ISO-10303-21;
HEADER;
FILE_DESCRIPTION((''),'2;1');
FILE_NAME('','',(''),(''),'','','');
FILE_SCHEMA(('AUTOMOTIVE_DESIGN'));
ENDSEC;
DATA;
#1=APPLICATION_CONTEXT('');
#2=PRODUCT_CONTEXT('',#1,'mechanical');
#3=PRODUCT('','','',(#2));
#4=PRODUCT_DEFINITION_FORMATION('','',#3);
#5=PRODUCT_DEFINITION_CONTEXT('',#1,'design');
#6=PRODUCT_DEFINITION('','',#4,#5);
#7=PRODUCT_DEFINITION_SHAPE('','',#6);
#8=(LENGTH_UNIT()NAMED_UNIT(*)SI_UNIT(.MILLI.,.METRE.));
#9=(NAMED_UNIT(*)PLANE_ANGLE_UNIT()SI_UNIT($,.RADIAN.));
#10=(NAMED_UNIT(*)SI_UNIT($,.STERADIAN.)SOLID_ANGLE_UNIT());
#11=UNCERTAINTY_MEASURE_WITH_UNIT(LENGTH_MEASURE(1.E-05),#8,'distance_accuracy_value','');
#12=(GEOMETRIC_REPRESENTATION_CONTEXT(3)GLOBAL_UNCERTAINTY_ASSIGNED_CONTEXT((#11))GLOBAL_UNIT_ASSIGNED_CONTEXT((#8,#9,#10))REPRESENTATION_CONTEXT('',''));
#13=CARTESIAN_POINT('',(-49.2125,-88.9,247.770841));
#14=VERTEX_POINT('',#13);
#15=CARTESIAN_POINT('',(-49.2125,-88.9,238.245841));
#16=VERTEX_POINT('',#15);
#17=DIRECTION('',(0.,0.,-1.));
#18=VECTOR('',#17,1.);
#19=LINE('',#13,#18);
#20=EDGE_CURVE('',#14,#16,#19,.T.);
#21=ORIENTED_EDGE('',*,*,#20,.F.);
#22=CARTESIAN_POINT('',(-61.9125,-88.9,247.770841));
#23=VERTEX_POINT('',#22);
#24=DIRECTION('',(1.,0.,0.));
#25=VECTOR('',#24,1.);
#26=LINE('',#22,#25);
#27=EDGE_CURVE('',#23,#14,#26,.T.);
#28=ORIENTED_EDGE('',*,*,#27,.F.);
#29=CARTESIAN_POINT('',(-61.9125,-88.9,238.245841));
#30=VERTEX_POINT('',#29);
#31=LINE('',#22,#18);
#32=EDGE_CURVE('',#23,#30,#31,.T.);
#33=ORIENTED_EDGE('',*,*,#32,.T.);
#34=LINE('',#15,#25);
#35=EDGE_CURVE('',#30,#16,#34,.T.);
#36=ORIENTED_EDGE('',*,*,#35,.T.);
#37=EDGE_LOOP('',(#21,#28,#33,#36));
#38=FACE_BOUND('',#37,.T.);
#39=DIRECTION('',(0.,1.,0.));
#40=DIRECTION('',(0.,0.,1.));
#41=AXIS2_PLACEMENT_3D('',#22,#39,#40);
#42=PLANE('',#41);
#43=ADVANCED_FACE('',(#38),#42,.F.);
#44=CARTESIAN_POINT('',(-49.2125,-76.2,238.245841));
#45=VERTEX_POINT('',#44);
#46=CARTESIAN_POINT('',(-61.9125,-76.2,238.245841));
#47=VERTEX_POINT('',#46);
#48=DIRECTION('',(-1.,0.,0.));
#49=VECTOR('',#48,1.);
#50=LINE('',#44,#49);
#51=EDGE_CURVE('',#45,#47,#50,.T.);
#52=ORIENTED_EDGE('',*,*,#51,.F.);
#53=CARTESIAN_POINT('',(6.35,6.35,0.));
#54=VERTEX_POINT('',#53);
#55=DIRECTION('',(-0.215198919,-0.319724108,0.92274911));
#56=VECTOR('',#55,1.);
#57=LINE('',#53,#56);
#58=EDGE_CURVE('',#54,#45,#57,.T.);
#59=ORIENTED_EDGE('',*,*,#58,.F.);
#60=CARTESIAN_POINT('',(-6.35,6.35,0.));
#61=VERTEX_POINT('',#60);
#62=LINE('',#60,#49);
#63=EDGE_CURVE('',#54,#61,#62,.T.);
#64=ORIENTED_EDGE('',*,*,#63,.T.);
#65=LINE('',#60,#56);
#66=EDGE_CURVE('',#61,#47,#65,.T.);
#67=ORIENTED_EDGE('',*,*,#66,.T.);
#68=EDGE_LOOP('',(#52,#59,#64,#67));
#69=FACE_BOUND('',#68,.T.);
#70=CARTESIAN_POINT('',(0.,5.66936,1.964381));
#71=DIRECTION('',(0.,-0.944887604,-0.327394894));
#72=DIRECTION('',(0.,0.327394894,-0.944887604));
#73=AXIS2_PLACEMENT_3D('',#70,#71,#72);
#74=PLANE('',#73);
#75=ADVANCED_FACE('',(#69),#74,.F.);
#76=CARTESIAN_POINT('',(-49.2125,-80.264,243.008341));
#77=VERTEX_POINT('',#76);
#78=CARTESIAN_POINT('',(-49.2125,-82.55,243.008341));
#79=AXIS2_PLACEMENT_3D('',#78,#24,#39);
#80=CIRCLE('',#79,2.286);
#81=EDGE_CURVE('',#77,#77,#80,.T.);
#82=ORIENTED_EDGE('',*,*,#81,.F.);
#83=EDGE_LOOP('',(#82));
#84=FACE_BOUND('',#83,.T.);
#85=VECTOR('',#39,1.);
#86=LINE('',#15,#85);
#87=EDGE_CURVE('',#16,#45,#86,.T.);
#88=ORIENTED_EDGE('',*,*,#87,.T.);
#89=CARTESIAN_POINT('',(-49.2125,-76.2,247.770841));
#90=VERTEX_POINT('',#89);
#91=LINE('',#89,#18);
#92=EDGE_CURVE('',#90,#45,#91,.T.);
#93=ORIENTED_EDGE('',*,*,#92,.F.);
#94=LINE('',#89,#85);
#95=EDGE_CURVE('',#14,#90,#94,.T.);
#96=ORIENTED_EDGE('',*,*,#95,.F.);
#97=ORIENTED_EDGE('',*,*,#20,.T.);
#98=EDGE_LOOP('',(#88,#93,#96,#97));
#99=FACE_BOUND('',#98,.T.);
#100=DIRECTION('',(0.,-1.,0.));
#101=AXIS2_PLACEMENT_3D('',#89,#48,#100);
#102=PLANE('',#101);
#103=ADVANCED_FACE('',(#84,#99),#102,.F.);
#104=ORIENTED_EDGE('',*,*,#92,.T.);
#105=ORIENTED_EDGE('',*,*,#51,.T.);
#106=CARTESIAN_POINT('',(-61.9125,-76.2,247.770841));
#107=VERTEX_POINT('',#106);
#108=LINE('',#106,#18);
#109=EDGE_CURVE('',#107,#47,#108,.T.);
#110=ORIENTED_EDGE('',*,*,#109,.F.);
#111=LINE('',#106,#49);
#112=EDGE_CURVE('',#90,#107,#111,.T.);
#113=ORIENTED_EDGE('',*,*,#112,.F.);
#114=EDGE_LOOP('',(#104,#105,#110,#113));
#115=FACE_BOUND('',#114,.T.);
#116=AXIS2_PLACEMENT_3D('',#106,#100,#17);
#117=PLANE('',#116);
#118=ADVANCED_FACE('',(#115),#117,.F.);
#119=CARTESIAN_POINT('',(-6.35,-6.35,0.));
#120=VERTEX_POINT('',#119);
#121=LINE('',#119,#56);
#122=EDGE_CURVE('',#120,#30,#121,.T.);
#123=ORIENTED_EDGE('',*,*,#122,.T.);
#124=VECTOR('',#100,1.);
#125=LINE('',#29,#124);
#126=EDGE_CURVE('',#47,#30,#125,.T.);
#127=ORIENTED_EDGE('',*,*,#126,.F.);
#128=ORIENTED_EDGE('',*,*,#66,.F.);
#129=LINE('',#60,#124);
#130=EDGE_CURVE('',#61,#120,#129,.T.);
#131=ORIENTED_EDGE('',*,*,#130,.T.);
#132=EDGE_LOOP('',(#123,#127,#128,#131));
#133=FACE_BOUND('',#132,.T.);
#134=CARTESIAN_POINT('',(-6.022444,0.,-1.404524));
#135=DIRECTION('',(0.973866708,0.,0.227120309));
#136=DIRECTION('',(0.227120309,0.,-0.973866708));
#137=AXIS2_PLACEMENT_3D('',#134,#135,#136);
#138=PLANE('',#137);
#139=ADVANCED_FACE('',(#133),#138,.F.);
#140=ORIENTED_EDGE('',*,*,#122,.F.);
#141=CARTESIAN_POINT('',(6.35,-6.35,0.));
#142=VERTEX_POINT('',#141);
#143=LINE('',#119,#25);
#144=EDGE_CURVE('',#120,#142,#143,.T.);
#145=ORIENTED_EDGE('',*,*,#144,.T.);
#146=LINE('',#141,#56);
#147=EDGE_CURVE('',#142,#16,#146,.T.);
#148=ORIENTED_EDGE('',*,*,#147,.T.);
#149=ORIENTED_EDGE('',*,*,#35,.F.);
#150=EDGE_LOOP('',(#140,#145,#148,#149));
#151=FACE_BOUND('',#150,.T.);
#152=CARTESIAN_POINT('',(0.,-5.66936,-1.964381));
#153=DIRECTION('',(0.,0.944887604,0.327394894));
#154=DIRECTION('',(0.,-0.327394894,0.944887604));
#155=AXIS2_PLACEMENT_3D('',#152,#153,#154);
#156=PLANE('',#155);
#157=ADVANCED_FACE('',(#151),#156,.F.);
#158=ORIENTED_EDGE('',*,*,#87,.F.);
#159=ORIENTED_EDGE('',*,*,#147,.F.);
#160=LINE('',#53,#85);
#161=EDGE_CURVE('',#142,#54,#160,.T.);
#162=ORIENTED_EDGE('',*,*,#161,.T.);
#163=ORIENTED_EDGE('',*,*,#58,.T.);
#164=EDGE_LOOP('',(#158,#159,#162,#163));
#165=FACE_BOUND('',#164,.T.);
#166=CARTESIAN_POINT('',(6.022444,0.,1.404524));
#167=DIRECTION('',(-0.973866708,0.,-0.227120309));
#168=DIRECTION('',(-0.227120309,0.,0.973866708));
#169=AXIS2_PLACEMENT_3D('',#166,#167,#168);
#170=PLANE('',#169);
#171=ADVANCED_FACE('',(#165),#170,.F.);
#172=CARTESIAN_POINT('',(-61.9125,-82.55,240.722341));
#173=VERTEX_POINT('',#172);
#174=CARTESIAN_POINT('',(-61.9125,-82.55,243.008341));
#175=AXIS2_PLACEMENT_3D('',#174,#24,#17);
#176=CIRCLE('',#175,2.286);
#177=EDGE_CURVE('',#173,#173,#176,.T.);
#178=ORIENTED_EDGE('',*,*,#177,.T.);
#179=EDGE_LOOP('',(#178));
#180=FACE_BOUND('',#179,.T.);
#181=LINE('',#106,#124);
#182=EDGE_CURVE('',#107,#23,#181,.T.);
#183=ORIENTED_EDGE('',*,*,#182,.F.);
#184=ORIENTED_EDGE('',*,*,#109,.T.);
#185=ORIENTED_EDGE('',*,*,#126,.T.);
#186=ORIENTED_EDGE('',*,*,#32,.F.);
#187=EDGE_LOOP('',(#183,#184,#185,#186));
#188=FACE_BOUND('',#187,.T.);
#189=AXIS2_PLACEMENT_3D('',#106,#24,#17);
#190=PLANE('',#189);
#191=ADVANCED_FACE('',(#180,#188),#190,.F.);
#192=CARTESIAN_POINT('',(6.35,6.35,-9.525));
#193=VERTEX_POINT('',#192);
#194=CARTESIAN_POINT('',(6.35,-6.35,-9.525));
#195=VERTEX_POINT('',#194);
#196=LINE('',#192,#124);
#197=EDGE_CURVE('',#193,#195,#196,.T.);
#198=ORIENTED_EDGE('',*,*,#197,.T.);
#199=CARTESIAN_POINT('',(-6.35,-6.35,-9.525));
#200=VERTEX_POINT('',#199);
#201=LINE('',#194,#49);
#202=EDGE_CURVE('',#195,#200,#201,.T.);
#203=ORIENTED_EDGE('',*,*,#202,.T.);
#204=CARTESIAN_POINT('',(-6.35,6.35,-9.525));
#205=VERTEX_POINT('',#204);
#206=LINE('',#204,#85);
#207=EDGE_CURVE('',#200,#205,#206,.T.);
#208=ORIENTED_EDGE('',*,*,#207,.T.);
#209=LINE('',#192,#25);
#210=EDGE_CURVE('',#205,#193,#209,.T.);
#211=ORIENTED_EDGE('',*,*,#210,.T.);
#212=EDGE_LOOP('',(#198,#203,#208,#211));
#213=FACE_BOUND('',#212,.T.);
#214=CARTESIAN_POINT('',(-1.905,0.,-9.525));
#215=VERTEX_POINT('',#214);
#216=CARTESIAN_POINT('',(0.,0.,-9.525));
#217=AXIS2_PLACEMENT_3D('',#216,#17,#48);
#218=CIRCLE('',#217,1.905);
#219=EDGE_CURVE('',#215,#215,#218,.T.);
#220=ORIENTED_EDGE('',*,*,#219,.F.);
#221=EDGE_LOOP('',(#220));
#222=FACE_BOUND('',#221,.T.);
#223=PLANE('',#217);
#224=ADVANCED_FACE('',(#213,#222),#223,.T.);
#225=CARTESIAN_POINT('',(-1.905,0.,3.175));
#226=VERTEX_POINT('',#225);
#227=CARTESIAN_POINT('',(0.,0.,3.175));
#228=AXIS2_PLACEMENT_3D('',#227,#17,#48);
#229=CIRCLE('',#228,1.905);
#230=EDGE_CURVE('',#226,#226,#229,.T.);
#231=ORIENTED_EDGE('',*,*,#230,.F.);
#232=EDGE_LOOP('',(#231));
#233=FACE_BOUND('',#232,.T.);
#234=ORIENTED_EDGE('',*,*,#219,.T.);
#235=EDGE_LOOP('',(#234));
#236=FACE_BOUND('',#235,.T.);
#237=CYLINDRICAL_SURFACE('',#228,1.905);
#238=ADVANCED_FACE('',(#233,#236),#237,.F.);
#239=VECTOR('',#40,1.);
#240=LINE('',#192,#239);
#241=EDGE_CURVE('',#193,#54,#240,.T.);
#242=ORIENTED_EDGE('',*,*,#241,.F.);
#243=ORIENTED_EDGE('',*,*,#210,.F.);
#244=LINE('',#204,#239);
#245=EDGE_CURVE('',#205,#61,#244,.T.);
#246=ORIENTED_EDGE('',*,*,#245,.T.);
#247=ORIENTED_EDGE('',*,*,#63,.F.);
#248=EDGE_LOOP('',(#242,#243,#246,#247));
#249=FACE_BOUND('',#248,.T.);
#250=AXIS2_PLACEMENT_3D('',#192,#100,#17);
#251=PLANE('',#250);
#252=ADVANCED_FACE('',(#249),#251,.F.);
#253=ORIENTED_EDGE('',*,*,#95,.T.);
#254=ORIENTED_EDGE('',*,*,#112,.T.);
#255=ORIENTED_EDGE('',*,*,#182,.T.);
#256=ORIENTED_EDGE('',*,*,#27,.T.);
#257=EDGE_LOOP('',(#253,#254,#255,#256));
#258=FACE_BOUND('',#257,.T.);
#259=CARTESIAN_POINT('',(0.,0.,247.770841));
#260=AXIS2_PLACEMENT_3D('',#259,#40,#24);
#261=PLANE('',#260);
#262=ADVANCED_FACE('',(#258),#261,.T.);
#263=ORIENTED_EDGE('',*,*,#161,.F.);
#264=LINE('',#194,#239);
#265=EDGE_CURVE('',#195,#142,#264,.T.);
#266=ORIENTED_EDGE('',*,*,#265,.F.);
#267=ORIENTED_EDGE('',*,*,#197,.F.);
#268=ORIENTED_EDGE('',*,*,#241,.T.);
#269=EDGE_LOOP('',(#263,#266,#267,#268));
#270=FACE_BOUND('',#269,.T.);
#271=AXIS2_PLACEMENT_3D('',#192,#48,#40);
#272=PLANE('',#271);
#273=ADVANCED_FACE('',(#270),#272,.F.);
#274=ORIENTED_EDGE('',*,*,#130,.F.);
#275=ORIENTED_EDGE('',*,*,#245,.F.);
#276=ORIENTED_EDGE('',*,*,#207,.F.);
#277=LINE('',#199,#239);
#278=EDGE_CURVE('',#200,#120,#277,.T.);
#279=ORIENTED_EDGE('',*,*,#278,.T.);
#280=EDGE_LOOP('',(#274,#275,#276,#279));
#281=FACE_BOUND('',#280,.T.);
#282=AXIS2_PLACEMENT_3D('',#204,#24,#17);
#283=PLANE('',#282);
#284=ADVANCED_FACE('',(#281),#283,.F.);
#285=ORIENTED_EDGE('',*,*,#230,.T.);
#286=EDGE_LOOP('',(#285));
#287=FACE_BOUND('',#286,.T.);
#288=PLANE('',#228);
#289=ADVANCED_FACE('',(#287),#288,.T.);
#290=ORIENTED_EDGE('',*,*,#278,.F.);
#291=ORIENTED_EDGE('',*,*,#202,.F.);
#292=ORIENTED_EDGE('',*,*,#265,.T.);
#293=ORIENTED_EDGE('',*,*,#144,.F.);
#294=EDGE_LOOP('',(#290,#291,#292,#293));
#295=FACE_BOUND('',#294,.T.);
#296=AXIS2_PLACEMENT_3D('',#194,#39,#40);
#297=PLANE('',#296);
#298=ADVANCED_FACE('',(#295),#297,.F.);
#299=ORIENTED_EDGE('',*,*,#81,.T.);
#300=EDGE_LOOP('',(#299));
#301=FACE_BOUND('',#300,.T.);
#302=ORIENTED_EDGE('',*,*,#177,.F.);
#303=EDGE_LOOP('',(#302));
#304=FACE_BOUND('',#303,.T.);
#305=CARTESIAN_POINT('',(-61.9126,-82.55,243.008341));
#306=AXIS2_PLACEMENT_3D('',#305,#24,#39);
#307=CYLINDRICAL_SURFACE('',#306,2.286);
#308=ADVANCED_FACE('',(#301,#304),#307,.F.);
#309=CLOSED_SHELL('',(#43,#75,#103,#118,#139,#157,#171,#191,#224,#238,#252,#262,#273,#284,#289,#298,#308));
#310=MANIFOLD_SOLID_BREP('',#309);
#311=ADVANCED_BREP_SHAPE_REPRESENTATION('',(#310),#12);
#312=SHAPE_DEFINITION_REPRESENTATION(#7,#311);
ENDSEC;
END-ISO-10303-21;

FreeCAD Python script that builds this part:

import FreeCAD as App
import Part
import Sketcher

V = App.Vector
Q = App.Units.Quantity


def add_polygon(sketch, points):
    """Adds a closed chain of lines whose ends are joined by coincident constraints."""
    first, n = sketch.GeometryCount, len(points)
    for a, b in zip(points, points[1:] + points[:1]):
        sketch.addGeometry(Part.LineSegment(App.Vector(*a, 0), App.Vector(*b, 0)), False)
    for i in range(n):
        sketch.addConstraint(Sketcher.Constraint("Coincident", first + i, 2, first + (i + 1) % n, 1))

doc = App.newDocument("Part")
params = doc.addObject("Spreadsheet::Sheet", "Params")
for row, (alias, value) in enumerate([
    ("sketch1_width", "0.5 in"),
    ("sketch2_width", "0.5 in"),
    ("sketch3_width", "0.5 in"),
    ("pad1_length", "0.375 in"),
    ("sketch4_width", "0.5 in"),
    ("pad2_length", "0.375 in"),
    ("sketch5_diameter", "0.18 in"),
    ("sketch6_diameter", "0.15 in"),
    ("pocket2_length", "0.5 in"),
], start=1):
    params.set(f"A{row}", alias)
    params.set(f"B{row}", "=" + value)
    params.setAlias(f"B{row}", alias)

body = doc.addObject("PartDesign::Body", "Body")

# Sketch on XY plane
sketch1 = body.newObject("Sketcher::SketchObject", "Sketch")
sketch1.AttachmentSupport = (doc.getObject("XY_Plane"), [""])
sketch1.MapMode = "FlatFace"
add_polygon(sketch1, [(6, 6), (-6, 6), (-6, -6), (6, -6)])  # lines 0-3
sketch1.addConstraint([
    Sketcher.Constraint("Horizontal", 0),
    Sketcher.Constraint("Vertical", 1),
    Sketcher.Constraint("Horizontal", 2),
    Sketcher.Constraint("Vertical", 3),
    Sketcher.Constraint("Symmetric", 0, 2, 2, 2, -1, 1),
    Sketcher.Constraint("Equal", 2, 1),
    Sketcher.Constraint("DistanceX", 0, 2, 0, 1, Q("0.5 in")),
])
sketch1.setExpression("Constraints[10]", "Params.sketch1_width")

# Sketch on XY plane
sketch2 = body.newObject("Sketcher::SketchObject", "Sketch001")
sketch2.AttachmentSupport = (doc.getObject("XY_Plane"), [""])
sketch2.MapMode = "FlatFace"
sketch2.AttachmentOffset = App.Placement(V(0, 0, 238.245841), App.Rotation())
add_polygon(sketch2, [(-62, -89), (-49, -89), (-49, -76), (-62, -76)])  # lines 0-3
sketch2.addConstraint([
    Sketcher.Constraint("Horizontal", 0),
    Sketcher.Constraint("Vertical", 1),
    Sketcher.Constraint("Horizontal", 2),
    Sketcher.Constraint("Vertical", 3),
    Sketcher.Constraint("Equal", 2, 1),
    Sketcher.Constraint("DistanceX", 0, 1, 0, 2, Q("0.5 in")),
    Sketcher.Constraint("DistanceY", 1, 2, -1, 1, Q("3 in")),
    Sketcher.Constraint("DistanceX", 0, 2, -1, 1, Q("1.9375 in")),
])
sketch2.setExpression("Constraints[9]", "Params.sketch2_width")

additiveloft = body.newObject("PartDesign::AdditiveLoft", "AdditiveLoft")
additiveloft.Profile = sketch1
additiveloft.Sections = [sketch2]

# Sketch on XY plane
sketch3 = body.newObject("Sketcher::SketchObject", "Sketch002")
sketch3.AttachmentSupport = (doc.getObject("XY_Plane"), [""])
sketch3.MapMode = "FlatFace"
add_polygon(sketch3, [(6, 6), (6, -6), (-6, -6), (-6, 6)])  # lines 0-3
sketch3.addConstraint([
    Sketcher.Constraint("Vertical", 0),
    Sketcher.Constraint("Horizontal", 1),
    Sketcher.Constraint("Vertical", 2),
    Sketcher.Constraint("Horizontal", 3),
    Sketcher.Constraint("Symmetric", 0, 2, 2, 2, -1, 1),
    Sketcher.Constraint("Equal", 3, 0),
    Sketcher.Constraint("DistanceX", 1, 2, 1, 1, Q("0.5 in")),
])
sketch3.setExpression("Constraints[10]", "Params.sketch3_width")
pad1 = body.newObject("PartDesign::Pad", "Pad")
pad1.Profile = sketch3
pad1.setExpression("Length", "Params.pad1_length")
pad1.Reversed = True

# Sketch on XY plane
sketch4 = body.newObject("Sketcher::SketchObject", "Sketch003")
sketch4.AttachmentSupport = (doc.getObject("XY_Plane"), [""])
sketch4.MapMode = "FlatFace"
sketch4.AttachmentOffset = App.Placement(V(0, 0, 238.245841), App.Rotation())
add_polygon(sketch4, [(-62, -76), (-62, -89), (-49, -89), (-49, -76)])  # lines 0-3
sketch4.addConstraint([
    Sketcher.Constraint("Vertical", 0),
    Sketcher.Constraint("Horizontal", 1),
    Sketcher.Constraint("Vertical", 2),
    Sketcher.Constraint("Horizontal", 3),
    Sketcher.Constraint("Equal", 3, 0),
    Sketcher.Constraint("DistanceX", 1, 1, 1, 2, Q("0.5 in")),
    Sketcher.Constraint("DistanceY", 2, 2, -1, 1, Q("3 in")),
    Sketcher.Constraint("DistanceX", 0, 2, -1, 1, Q("2.4375 in")),
])
sketch4.setExpression("Constraints[9]", "Params.sketch4_width")
pad2 = body.newObject("PartDesign::Pad", "Pad001")
pad2.Profile = sketch4
pad2.setExpression("Length", "Params.pad2_length")

# Sketch on YZ plane
sketch5 = body.newObject("Sketcher::SketchObject", "Sketch004")
sketch5.AttachmentSupport = (doc.getObject("YZ_Plane"), [""])
sketch5.MapMode = "FlatFace"
sketch5.AttachmentOffset = App.Placement(V(0, 0, -1.9375 * 25.4), App.Rotation())
sketch5.addGeometry(Part.Circle(V(-82.5, 243, 0), V(0, 0, 1), 2.3), False)
sketch5.addConstraint([
    Sketcher.Constraint("Diameter", 0, Q("0.18 in")),
    Sketcher.Constraint("DistanceX", 0, 3, -1, 1, Q("3.25 in")),
    Sketcher.Constraint("DistanceY", -1, 1, 0, 3, Q("243.008341 mm")),
])
sketch5.setExpression("Constraints[0]", "Params.sketch5_diameter")
pocket1 = body.newObject("PartDesign::Pocket", "Pocket")
pocket1.Profile = sketch5
pocket1.Type = "ThroughAll"

# Sketch on XY plane
sketch6 = body.newObject("Sketcher::SketchObject", "Sketch005")
sketch6.AttachmentSupport = (doc.getObject("XY_Plane"), [""])
sketch6.MapMode = "FlatFace"
sketch6.AttachmentOffset = App.Placement(V(0, 0, -0.375 * 25.4), App.Rotation())
sketch6.addGeometry(Part.Circle(V(0, 0, 0), V(0, 0, 1), 1.9), False)
sketch6.addConstraint([
    Sketcher.Constraint("Coincident", 0, 3, -1, 1),
    Sketcher.Constraint("Diameter", 0, Q("0.15 in")),
])
sketch6.setExpression("Constraints[1]", "Params.sketch6_diameter")
pocket2 = body.newObject("PartDesign::Pocket", "Pocket001")
pocket2.Profile = sketch6
pocket2.setExpression("Length", "Params.pocket2_length")
pocket2.Reversed = True

doc.recompute()
